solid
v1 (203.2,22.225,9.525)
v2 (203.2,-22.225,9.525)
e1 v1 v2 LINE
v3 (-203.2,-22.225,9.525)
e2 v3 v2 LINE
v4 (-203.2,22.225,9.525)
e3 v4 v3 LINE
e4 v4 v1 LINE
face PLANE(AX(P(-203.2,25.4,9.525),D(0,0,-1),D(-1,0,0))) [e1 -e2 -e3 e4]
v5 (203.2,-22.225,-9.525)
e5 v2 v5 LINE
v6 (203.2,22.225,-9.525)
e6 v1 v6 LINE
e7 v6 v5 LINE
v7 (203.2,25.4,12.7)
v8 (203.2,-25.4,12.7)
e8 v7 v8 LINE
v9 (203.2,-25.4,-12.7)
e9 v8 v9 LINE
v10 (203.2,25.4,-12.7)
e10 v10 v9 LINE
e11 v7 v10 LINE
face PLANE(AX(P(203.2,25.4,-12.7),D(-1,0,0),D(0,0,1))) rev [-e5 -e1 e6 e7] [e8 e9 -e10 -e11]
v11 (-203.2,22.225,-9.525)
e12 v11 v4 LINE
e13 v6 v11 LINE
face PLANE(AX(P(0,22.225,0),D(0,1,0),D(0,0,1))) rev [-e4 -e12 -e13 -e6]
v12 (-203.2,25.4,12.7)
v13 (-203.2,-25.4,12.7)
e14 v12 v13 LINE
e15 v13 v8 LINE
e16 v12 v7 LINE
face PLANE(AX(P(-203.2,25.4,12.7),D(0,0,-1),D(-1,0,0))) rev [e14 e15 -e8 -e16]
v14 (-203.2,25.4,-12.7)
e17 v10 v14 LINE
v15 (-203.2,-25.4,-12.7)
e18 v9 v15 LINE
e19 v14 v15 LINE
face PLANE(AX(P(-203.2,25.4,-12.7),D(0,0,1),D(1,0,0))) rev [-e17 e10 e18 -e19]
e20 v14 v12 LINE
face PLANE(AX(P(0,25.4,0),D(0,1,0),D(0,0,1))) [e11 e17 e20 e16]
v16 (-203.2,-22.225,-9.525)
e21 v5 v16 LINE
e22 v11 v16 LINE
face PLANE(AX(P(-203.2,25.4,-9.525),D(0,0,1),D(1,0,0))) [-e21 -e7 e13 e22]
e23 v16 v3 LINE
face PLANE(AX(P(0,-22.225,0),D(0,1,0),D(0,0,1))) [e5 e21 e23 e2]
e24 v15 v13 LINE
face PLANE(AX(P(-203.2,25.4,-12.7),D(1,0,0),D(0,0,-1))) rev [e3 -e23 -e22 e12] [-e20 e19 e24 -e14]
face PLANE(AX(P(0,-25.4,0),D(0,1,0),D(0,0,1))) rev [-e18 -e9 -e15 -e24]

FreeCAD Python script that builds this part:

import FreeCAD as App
import Part
import Sketcher

V = App.Vector
Q = App.Units.Quantity


def faces_at(feature, points):
    """Names of the faces that lie closest to the given points."""
    faces = feature.Shape.Faces
    near = lambda p: min(range(len(faces)), key=lambda i: faces[i].distToShape(Part.Vertex(*p))[0])
    return sorted({f"Face{near(p) + 1}" for p in points})

doc = App.newDocument("Part")
body = doc.addObject("PartDesign::Body", "Body")

sketch1 = body.newObject("Sketcher::SketchObject", "Sketch")
sketch1.AttachmentSupport = (doc.getObject("XZ_Plane"), [""])
sketch1.MapMode = "FlatFace"
sketch1.addGeometry([
    Part.LineSegment(V(-203, -13, 0), V(-203, 13, 0)),
    Part.LineSegment(V(-203, 13, 0), V(203, 13, 0)),
    Part.LineSegment(V(203, 13, 0), V(203, -13, 0)),
    Part.LineSegment(V(203, -13, 0), V(-203, -13, 0)),
], False)
sketch1.addConstraint([
    Sketcher.Constraint("Coincident", 0, 2, 1, 1),
    Sketcher.Constraint("Coincident", 1, 2, 2, 1),
    Sketcher.Constraint("Coincident", 2, 2, 3, 1),
    Sketcher.Constraint("Coincident", 3, 2, 0, 1),
    Sketcher.Constraint("Vertical", 0),
    Sketcher.Constraint("Horizontal", 1),
    Sketcher.Constraint("Vertical", 2),
    Sketcher.Constraint("Horizontal", 3),
    Sketcher.Constraint("Symmetric", 0, 2, 2, 2, -1, 1),
    Sketcher.Constraint("DistanceX", 1, 1, 1, 2, Q("16 in")),
    Sketcher.Constraint("DistanceY", 0, 1, 0, 2, Q("1 in")),
])
pad1 = body.newObject("PartDesign::Pad", "Pad")
pad1.Profile = sketch1
pad1.Length = Q("2 in")
pad1.Midplane = True
doc.recompute()

thickness = body.newObject("PartDesign::Thickness", "Thickness")
thickness.Base = (pad1, faces_at(pad1, [(-203.2, 0, 0), (203.2, 0, 0)]))
thickness.Value = Q("0.125 in")
thickness.Reversed = True
thickness.Join = "Intersection"

doc.recompute()
